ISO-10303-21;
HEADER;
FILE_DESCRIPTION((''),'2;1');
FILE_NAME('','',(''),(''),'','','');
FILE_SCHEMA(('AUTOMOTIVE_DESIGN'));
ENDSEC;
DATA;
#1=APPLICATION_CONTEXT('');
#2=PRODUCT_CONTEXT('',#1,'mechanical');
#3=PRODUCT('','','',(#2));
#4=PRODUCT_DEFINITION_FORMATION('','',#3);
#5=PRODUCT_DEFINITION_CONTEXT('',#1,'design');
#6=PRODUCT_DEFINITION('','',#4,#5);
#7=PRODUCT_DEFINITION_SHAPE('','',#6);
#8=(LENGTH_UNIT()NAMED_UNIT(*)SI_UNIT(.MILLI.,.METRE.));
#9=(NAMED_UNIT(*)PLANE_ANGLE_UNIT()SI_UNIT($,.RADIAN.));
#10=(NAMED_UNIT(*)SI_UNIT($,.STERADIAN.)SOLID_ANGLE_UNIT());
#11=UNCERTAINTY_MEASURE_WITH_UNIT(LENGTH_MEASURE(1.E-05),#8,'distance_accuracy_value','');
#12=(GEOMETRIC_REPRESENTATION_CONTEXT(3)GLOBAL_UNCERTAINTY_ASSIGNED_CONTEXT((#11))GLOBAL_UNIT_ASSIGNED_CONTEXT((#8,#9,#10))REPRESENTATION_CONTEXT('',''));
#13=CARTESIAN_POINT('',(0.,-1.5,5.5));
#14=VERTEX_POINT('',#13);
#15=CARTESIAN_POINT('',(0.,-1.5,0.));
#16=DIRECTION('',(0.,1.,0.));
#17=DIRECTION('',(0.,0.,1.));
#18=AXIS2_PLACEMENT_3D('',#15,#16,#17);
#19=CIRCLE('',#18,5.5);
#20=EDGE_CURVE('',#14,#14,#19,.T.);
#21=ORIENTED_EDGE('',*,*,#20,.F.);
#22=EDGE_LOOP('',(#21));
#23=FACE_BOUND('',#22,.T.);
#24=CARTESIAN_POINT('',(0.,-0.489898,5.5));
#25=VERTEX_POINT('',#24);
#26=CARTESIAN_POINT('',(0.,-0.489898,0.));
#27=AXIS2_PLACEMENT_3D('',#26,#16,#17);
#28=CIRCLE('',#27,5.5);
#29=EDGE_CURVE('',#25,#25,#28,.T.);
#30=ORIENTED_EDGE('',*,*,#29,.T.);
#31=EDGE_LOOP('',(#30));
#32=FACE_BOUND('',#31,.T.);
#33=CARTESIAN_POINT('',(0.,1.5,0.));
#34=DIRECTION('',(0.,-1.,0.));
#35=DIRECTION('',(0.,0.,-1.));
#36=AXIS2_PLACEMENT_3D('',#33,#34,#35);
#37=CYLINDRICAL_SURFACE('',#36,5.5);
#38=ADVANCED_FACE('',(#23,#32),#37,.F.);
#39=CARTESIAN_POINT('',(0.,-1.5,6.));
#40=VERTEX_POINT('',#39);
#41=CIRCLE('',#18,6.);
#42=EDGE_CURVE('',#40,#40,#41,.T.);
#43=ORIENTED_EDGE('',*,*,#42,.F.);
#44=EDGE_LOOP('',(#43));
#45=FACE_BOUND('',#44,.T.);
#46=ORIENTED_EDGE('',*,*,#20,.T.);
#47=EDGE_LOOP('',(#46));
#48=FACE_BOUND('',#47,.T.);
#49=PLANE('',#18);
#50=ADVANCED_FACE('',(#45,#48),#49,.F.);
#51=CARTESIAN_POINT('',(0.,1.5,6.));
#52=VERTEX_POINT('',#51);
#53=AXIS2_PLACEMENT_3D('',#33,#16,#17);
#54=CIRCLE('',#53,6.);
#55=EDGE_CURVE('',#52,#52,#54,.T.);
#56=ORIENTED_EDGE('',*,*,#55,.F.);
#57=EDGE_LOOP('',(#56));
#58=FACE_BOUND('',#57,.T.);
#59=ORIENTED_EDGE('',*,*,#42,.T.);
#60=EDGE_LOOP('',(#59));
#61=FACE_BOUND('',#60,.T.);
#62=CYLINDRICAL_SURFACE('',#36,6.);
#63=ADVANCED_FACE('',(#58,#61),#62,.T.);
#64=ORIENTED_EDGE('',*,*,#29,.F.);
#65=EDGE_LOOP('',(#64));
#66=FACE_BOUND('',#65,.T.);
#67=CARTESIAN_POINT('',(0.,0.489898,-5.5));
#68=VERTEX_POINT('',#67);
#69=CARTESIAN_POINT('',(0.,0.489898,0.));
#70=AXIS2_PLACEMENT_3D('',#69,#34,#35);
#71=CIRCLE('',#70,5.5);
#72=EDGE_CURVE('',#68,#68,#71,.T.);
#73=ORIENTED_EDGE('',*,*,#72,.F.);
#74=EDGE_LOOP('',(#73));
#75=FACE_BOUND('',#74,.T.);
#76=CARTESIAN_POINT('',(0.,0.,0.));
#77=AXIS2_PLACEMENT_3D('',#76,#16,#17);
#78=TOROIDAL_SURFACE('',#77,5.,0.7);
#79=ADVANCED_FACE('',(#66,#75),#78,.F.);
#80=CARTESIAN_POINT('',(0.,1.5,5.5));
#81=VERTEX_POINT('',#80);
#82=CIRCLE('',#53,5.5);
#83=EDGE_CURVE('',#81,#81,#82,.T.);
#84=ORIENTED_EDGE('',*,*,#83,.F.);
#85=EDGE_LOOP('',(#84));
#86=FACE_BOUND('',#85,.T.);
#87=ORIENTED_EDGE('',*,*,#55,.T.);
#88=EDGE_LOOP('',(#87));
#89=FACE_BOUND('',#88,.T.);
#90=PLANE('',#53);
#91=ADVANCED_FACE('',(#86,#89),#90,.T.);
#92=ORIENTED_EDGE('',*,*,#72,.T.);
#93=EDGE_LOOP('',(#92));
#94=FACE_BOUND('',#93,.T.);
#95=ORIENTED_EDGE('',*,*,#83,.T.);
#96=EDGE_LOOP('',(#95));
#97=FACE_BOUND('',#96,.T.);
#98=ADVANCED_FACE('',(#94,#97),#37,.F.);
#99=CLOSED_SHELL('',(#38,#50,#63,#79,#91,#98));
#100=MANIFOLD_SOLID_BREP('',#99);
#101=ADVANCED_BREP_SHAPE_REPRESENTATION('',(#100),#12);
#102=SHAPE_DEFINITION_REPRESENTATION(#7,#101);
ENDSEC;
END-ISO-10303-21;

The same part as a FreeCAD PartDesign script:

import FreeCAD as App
import Part
import Sketcher
from FreeCAD import Vector

doc = App.newDocument("Part")
body = doc.addObject("PartDesign::Body", "Body")

sketch1 = body.newObject("Sketcher::SketchObject", "Sketch")
sketch1.AttachmentSupport = (doc.getObject("XZ_Plane"), [""])
sketch1.MapMode = "FlatFace"
sketch1.addGeometry([
    Part.Circle(Vector(0, 0, 0), Vector(0, 0, 1), 6),
    Part.Circle(Vector(0, 0, 0), Vector(0, 0, 1), 6),
], False)
sketch1.addConstraint([
    Sketcher.Constraint("Coincident", 0, 3, -1, 1),
    Sketcher.Constraint("Coincident", 1, 3, -1, 1),
    Sketcher.Constraint("Diameter", 0, 12.0),
    Sketcher.Constraint("Diameter", 1, 11.0),
])
pad1 = body.newObject("PartDesign::Pad", "Pad")
pad1.Profile = sketch1
pad1.Length = 3
pad1.Midplane = True

sketch2 = body.newObject("Sketcher::SketchObject", "Sketch001")
sketch2.AttachmentSupport = (doc.getObject("XY_Plane"), [""])
sketch2.MapMode = "FlatFace"
sketch2.addGeometry(Part.Circle(Vector(5, 0, 0), Vector(0, 0, 1), 0.7), False)
sketch2.addConstraint([
    Sketcher.Constraint("PointOnObject", 0, 3, -1),
    Sketcher.Constraint("Diameter", 0, 1.4),
    Sketcher.Constraint("DistanceX", -1, 1, 0, 3, 5.0),
])
groove = body.newObject("PartDesign::Groove", "Groove")
groove.Profile = sketch2
groove.ReferenceAxis = (sketch2, ["V_Axis"])
groove.Angle = 360

doc.recompute()
